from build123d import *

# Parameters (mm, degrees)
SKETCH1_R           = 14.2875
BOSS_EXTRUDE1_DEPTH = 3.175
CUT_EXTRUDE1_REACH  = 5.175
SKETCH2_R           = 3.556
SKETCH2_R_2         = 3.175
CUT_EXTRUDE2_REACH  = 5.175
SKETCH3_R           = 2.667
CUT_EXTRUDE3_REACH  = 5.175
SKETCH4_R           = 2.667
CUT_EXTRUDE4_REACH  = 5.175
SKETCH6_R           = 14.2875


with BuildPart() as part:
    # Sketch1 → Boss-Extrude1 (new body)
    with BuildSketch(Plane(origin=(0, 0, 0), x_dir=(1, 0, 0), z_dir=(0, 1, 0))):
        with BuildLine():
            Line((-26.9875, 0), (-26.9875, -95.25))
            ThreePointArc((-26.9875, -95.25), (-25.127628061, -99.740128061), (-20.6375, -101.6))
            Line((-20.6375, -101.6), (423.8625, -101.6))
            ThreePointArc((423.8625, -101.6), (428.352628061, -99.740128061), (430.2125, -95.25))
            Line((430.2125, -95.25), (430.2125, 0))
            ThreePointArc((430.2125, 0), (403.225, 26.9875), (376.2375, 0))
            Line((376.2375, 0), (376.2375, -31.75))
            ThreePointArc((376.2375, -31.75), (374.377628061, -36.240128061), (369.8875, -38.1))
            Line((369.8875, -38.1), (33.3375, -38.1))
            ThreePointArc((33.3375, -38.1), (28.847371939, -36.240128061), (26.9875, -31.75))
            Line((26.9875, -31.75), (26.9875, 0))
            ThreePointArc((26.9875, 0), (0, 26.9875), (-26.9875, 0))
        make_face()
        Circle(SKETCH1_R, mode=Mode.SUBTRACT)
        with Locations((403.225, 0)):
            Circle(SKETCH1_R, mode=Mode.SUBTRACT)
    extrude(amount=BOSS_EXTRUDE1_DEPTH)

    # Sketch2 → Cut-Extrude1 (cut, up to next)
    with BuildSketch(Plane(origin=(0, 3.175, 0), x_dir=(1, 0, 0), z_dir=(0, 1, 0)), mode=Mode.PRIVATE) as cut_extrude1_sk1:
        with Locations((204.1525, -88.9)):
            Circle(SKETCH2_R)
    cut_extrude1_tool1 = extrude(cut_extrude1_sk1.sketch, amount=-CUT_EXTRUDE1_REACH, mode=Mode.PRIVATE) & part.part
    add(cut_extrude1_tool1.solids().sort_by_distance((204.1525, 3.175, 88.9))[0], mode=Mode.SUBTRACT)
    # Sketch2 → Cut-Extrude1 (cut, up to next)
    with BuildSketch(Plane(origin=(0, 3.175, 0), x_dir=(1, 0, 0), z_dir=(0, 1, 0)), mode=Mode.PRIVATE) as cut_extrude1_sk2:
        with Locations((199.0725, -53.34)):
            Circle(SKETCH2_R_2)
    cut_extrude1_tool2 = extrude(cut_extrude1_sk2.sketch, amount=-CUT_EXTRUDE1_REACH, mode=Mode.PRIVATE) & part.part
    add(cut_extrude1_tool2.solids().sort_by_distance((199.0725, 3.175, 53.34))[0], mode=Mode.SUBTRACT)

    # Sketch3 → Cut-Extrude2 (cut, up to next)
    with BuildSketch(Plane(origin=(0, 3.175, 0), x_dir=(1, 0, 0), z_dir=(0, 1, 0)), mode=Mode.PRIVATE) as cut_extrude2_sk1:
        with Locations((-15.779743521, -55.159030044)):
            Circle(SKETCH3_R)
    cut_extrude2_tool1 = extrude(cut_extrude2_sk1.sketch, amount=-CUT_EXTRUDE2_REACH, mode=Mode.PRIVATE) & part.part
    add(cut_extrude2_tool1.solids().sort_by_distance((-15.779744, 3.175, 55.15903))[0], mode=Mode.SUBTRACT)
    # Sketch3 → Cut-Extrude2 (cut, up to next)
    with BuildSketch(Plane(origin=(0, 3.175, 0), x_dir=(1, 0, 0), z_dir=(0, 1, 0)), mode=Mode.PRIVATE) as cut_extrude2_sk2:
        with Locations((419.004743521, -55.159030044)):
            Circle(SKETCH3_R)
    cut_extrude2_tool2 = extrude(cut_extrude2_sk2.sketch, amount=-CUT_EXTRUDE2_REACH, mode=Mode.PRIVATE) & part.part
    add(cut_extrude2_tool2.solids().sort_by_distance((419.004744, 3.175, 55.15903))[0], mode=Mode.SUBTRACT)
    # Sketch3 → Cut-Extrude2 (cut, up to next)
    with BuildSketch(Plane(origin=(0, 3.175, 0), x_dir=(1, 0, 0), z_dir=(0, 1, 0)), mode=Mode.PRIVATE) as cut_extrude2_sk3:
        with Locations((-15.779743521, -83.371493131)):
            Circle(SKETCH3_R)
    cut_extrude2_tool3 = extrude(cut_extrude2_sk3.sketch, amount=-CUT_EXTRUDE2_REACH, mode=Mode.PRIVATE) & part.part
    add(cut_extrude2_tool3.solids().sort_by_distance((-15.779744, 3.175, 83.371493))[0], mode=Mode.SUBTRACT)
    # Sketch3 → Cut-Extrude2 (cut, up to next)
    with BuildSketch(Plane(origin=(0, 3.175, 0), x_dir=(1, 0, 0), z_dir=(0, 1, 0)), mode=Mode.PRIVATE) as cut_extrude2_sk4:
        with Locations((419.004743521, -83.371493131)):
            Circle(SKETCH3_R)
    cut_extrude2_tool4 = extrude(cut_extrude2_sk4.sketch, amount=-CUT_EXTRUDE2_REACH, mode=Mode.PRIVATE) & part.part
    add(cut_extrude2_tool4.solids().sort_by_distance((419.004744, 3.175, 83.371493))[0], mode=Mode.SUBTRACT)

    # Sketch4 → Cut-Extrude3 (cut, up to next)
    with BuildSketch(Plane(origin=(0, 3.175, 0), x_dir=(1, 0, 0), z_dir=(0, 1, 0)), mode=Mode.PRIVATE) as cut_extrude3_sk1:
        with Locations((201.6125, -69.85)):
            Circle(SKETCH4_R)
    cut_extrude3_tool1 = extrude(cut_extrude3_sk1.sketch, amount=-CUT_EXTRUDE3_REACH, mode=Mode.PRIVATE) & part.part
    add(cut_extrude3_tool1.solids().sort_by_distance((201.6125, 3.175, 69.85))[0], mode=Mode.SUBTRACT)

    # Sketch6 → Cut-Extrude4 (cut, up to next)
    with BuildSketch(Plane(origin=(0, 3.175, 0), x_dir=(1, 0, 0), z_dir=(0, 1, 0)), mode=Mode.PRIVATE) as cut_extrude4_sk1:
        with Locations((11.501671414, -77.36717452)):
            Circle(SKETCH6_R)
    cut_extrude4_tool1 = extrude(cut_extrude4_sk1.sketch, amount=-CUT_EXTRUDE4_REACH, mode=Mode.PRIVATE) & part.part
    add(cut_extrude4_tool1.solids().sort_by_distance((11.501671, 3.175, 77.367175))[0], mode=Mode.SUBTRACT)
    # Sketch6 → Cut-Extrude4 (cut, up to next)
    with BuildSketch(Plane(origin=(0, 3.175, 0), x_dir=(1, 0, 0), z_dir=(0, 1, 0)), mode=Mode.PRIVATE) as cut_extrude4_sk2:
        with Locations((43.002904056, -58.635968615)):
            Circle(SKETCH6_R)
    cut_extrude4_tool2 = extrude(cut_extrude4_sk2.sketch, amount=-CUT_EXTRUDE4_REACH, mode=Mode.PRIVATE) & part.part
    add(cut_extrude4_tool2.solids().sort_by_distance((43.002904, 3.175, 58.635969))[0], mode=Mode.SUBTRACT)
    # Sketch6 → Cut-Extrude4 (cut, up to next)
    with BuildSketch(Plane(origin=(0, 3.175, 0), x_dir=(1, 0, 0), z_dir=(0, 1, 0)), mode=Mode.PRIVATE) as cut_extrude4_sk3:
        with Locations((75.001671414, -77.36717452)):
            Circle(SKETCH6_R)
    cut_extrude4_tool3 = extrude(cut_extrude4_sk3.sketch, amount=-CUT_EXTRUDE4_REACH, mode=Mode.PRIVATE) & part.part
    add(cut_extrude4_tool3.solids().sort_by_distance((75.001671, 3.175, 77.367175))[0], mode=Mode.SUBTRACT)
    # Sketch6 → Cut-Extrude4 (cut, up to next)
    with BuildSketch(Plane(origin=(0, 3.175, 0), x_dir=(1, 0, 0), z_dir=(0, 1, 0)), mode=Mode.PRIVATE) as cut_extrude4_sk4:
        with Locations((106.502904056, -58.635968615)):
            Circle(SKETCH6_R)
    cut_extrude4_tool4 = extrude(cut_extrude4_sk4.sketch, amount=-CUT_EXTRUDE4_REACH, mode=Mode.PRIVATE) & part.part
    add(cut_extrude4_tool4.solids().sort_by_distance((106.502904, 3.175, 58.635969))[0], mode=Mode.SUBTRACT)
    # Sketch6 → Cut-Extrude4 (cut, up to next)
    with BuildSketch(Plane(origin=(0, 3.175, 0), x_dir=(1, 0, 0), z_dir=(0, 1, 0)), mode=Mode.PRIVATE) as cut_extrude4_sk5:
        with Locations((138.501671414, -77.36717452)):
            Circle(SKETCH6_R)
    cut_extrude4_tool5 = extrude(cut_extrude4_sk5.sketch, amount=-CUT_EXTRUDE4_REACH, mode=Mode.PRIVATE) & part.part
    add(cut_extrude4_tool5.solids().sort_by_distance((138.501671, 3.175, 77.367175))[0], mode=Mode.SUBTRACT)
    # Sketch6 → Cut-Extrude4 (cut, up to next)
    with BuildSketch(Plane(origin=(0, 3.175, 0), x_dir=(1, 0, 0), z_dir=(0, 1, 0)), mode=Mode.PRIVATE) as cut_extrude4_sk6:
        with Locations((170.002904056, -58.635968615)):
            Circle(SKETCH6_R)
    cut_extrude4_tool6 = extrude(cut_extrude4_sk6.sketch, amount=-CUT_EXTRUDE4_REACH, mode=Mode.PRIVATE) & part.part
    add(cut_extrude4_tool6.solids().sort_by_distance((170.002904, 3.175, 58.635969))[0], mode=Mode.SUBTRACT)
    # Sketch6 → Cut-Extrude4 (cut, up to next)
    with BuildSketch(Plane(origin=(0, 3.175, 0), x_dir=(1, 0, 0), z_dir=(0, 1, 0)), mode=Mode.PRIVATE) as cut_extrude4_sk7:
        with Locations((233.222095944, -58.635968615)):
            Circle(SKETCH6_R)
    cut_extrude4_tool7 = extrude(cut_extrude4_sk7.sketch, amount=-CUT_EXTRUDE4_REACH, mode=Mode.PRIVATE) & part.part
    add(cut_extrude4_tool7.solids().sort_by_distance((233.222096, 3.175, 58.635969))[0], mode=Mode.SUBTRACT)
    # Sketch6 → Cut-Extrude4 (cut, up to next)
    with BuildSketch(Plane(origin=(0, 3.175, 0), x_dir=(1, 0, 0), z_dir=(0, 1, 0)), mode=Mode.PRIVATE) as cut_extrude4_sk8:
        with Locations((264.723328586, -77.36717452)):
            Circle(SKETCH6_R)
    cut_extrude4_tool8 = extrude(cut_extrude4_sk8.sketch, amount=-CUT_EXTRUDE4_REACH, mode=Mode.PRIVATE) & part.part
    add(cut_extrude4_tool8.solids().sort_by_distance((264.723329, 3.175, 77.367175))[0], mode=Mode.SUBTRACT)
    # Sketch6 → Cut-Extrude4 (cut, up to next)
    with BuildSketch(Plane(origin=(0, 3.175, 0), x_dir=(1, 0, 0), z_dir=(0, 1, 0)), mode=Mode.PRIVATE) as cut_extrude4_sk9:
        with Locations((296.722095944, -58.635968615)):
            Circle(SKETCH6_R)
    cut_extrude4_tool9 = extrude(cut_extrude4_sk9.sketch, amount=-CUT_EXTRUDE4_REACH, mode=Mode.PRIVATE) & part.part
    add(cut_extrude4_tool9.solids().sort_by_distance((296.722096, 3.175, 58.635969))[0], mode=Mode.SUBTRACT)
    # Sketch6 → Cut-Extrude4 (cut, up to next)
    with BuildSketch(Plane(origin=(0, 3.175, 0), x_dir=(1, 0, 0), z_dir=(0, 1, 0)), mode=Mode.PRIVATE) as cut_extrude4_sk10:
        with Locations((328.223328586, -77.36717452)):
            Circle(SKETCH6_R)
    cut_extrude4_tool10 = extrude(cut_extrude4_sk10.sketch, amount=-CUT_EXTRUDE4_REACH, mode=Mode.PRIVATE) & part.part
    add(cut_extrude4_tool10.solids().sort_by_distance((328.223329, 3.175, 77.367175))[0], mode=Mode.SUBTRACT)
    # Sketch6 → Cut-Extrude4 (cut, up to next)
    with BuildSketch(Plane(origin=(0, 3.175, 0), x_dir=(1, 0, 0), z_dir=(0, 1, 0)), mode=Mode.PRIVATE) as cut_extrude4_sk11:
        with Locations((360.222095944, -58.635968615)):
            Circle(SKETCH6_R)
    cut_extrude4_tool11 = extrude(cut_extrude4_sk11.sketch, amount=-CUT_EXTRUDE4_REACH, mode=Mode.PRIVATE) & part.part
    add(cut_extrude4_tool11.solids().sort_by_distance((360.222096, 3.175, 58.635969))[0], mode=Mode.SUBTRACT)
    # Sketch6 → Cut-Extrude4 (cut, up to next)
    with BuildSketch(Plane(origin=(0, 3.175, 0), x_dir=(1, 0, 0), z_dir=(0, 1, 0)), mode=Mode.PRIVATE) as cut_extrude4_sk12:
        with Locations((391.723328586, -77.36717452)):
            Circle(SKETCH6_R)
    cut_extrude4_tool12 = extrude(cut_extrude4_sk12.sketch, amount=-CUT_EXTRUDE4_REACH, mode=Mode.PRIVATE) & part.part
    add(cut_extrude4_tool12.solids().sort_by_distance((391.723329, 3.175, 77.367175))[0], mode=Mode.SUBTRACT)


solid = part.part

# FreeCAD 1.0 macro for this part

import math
import FreeCAD as App
import Part
import Sketcher

V = App.Vector
Q = App.Units.Quantity

doc = App.newDocument("Part")
body = doc.addObject("PartDesign::Body", "Body")

sketch1 = body.newObject("Sketcher::SketchObject", "Sketch")
sketch1.AttachmentSupport = (doc.getObject("XZ_Plane"), [""])
sketch1.MapMode = "FlatFace"
sketch1.addGeometry([
    Part.LineSegment(V(-27, 0, 0), V(-27, 95, 0)),
    Part.ArcOfCircle(Part.Circle(V(-21, 95, 0), V(0, 0, 1), 6), math.radians(90), math.radians(180)),
    Part.LineSegment(V(-21, 102, 0), V(424, 102, 0)),
    Part.ArcOfCircle(Part.Circle(V(424, 95, 0), V(0, 0, 1), 6), math.radians(0), math.radians(90)),
    Part.LineSegment(V(430, 95, 0), V(430, 0, 0)),
    Part.ArcOfCircle(Part.Circle(V(403, 0, 0), V(0, 0, 1), 27), math.radians(180), math.radians(360)),
    Part.LineSegment(V(376, 0, 0), V(376, 32, 0)),
    Part.ArcOfCircle(Part.Circle(V(370, 32, 0), V(0, 0, 1), 6), math.radians(0), math.radians(90)),
    Part.LineSegment(V(370, 38, 0), V(33, 38, 0)),
    Part.ArcOfCircle(Part.Circle(V(33, 32, 0), V(0, 0, 1), 6), math.radians(90), math.radians(180)),
    Part.LineSegment(V(27, 32, 0), V(27, 0, 0)),
    Part.ArcOfCircle(Part.Circle(V(0, 0, 0), V(0, 0, 1), 27), math.radians(180), math.radians(360)),
    Part.Circle(V(0, 0, 0), V(0, 0, 1), 14),
    Part.Circle(V(403, 0, 0), V(0, 0, 1), 14),
], False)
sketch1.addConstraint([
    Sketcher.Constraint("Tangent", 0, 2, 1, 2),
    Sketcher.Constraint("Tangent", 1, 1, 2, 1),
    Sketcher.Constraint("Tangent", 2, 2, 3, 2),
    Sketcher.Constraint("Tangent", 3, 1, 4, 1),
    Sketcher.Constraint("Tangent", 4, 2, 5, 2),
    Sketcher.Constraint("Tangent", 5, 1, 6, 1),
    Sketcher.Constraint("Tangent", 6, 2, 7, 1),
    Sketcher.Constraint("Tangent", 7, 2, 8, 1),
    Sketcher.Constraint("Tangent", 8, 2, 9, 1),
    Sketcher.Constraint("Tangent", 9, 2, 10, 1),
    Sketcher.Constraint("Tangent", 10, 2, 11, 2),
    Sketcher.Constraint("Tangent", 11, 1, 0, 1),
    Sketcher.Constraint("Vertical", 0),
    Sketcher.Constraint("Horizontal", 2),
    Sketcher.Constraint("Vertical", 4),
    Sketcher.Constraint("Vertical", 6),
    Sketcher.Constraint("Horizontal", 8),
    Sketcher.Constraint("Vertical", 10),
    Sketcher.Constraint("Coincident", 11, 3, -1, 1),
    Sketcher.Constraint("Coincident", 12, 3, -1, 1),
    Sketcher.Constraint("Coincident", 13, 3, 5, 3),
    Sketcher.Constraint("Equal", 1, 3),
    Sketcher.Constraint("Equal", 3, 7),
    Sketcher.Constraint("Equal", 7, 9),
    Sketcher.Constraint("Equal", 5, 11),
    Sketcher.Constraint("Equal", 12, 13),
    Sketcher.Constraint("PointOnObject", 5, 3, -1),
    Sketcher.Constraint("Radius", 1, Q("0.25 in")),
    Sketcher.Constraint("Diameter", 12, Q("1.125 in")),
    Sketcher.Constraint("DistanceX", 2, 1, 2, 2, Q("17.5 in")),
    Sketcher.Constraint("DistanceY", -1, 1, 1, 1, Q("4 in")),
    Sketcher.Constraint("Radius", 5, Q("1.0625 in")),
    Sketcher.Constraint("DistanceY", 6, 1, 6, 2, Q("1.25 in")),
])
pad1 = body.newObject("PartDesign::Pad", "Pad")
pad1.Profile = sketch1
pad1.Length = Q("0.125 in")
pad1.Reversed = True

sketch2 = body.newObject("Sketcher::SketchObject", "Sketch001")
sketch2.AttachmentSupport = (doc.getObject("XZ_Plane"), [""])
sketch2.MapMode = "FlatFace"
sketch2.AttachmentOffset = App.Placement(V(0, 0, -0.125 * 25.4), App.Rotation())
sketch2.addGeometry(Part.Circle(V(204.2, 88.9, 0), V(0, 0, 1), 3.6), False)
sketch2.addConstraint([
    Sketcher.Constraint("Diameter", 0, Q("0.28 in")),
    Sketcher.Constraint("DistanceY", -1, 1, 0, 3, Q("3.5 in")),
    Sketcher.Constraint("DistanceX", -1, 1, 0, 3, Q("8.0375 in")),
])
pocket1 = body.newObject("PartDesign::Pocket", "Pocket")
pocket1.Profile = sketch2
pocket1.Type = "UpToFirst"
pocket1.Reversed = True

sketch3 = body.newObject("Sketcher::SketchObject", "Sketch002")
sketch3.AttachmentSupport = (doc.getObject("XZ_Plane"), [""])
sketch3.MapMode = "FlatFace"
sketch3.AttachmentOffset = App.Placement(V(0, 0, -0.125 * 25.4), App.Rotation())
sketch3.addGeometry(Part.Circle(V(199.1, 53.3, 0), V(0, 0, 1), 3.2), False)
sketch3.addConstraint([
    Sketcher.Constraint("Diameter", 0, Q("0.25 in")),
    Sketcher.Constraint("DistanceY", -1, 1, 0, 3, Q("2.1 in")),
    Sketcher.Constraint("DistanceX", -1, 1, 0, 3, Q("7.8375 in")),
])
pocket2 = body.newObject("PartDesign::Pocket", "Pocket001")
pocket2.Profile = sketch3
pocket2.Type = "UpToFirst"
pocket2.Reversed = True

sketch4 = body.newObject("Sketcher::SketchObject", "Sketch003")
sketch4.AttachmentSupport = (doc.getObject("XZ_Plane"), [""])
sketch4.MapMode = "FlatFace"
sketch4.AttachmentOffset = App.Placement(V(0, 0, -0.125 * 25.4), App.Rotation())
sketch4.addGeometry(Part.Circle(V(-15.8, 55.2, 0), V(0, 0, 1), 2.7), False)
sketch4.addConstraint([
    Sketcher.Constraint("Diameter", 0, Q("0.21 in")),
    Sketcher.Constraint("DistanceY", -1, 1, 0, 3, 55.15903),
    Sketcher.Constraint("DistanceX", 0, 3, -1, 1, 15.779744),
])
pocket3 = body.newObject("PartDesign::Pocket", "Pocket002")
pocket3.Profile = sketch4
pocket3.Type = "UpToFirst"
pocket3.Reversed = True

sketch5 = body.newObject("Sketcher::SketchObject", "Sketch004")
sketch5.AttachmentSupport = (doc.getObject("XZ_Plane"), [""])
sketch5.MapMode = "FlatFace"
sketch5.AttachmentOffset = App.Placement(V(0, 0, -0.125 * 25.4), App.Rotation())
sketch5.addGeometry(Part.Circle(V(419, 55.2, 0), V(0, 0, 1), 2.7), False)
sketch5.addConstraint([
    Sketcher.Constraint("Diameter", 0, Q("0.21 in")),
    Sketcher.Constraint("DistanceY", -1, 1, 0, 3, 55.15903),
    Sketcher.Constraint("DistanceX", -1, 1, 0, 3, 419.004744),
])
pocket4 = body.newObject("PartDesign::Pocket", "Pocket003")
pocket4.Profile = sketch5
pocket4.Type = "UpToFirst"
pocket4.Reversed = True

sketch6 = body.newObject("Sketcher::SketchObject", "Sketch005")
sketch6.AttachmentSupport = (doc.getObject("XZ_Plane"), [""])
sketch6.MapMode = "FlatFace"
sketch6.AttachmentOffset = App.Placement(V(0, 0, -0.125 * 25.4), App.Rotation())
sketch6.addGeometry(Part.Circle(V(-15.8, 83.4, 0), V(0, 0, 1), 2.7), False)
sketch6.addConstraint([
    Sketcher.Constraint("Diameter", 0, Q("0.21 in")),
    Sketcher.Constraint("DistanceX", 0, 3, -1, 1, 15.779744),
    Sketcher.Constraint("DistanceY", -1, 1, 0, 3, 83.371493),
])
pocket5 = body.newObject("PartDesign::Pocket", "Pocket004")
pocket5.Profile = sketch6
pocket5.Type = "UpToFirst"
pocket5.Reversed = True

sketch7 = body.newObject("Sketcher::SketchObject", "Sketch006")
sketch7.AttachmentSupport = (doc.getObject("XZ_Plane"), [""])
sketch7.MapMode = "FlatFace"
sketch7.AttachmentOffset = App.Placement(V(0, 0, -0.125 * 25.4), App.Rotation())
sketch7.addGeometry(Part.Circle(V(419, 83.4, 0), V(0, 0, 1), 2.7), False)
sketch7.addConstraint([
    Sketcher.Constraint("Diameter", 0, Q("0.21 in")),
    Sketcher.Constraint("DistanceX", -1, 1, 0, 3, 419.004744),
    Sketcher.Constraint("DistanceY", -1, 1, 0, 3, 83.371493),
])
pocket6 = body.newObject("PartDesign::Pocket", "Pocket005")
pocket6.Profile = sketch7
pocket6.Type = "UpToFirst"
pocket6.Reversed = True

sketch8 = body.newObject("Sketcher::SketchObject", "Sketch007")
sketch8.AttachmentSupport = (doc.getObject("XZ_Plane"), [""])
sketch8.MapMode = "FlatFace"
sketch8.AttachmentOffset = App.Placement(V(0, 0, -0.125 * 25.4), App.Rotation())
sketch8.addGeometry(Part.Circle(V(201.6, 69.8, 0), V(0, 0, 1), 2.7), False)
sketch8.addConstraint([
    Sketcher.Constraint("Diameter", 0, Q("0.21 in")),
    Sketcher.Constraint("DistanceY", -1, 1, 0, 3, Q("2.75 in")),
    Sketcher.Constraint("DistanceX", -1, 1, 0, 3, Q("7.9375 in")),
])
pocket7 = body.newObject("PartDesign::Pocket", "Pocket006")
pocket7.Profile = sketch8
pocket7.Type = "UpToFirst"
pocket7.Reversed = True

sketch9 = body.newObject("Sketcher::SketchObject", "Sketch008")
sketch9.AttachmentSupport = (doc.getObject("XZ_Plane"), [""])
sketch9.MapMode = "FlatFace"
sketch9.AttachmentOffset = App.Placement(V(0, 0, -0.125 * 25.4), App.Rotation())
sketch9.addGeometry(Part.Circle(V(12, 77, 0), V(0, 0, 1), 14), False)
sketch9.addConstraint([
    Sketcher.Constraint("Diameter", 0, Q("1.125 in")),
    Sketcher.Constraint("DistanceX", -1, 1, 0, 3, 11.501671),
    Sketcher.Constraint("DistanceY", -1, 1, 0, 3, 77.367175),
])
pocket8 = body.newObject("PartDesign::Pocket", "Pocket007")
pocket8.Profile = sketch9
pocket8.Type = "UpToFirst"
pocket8.Reversed = True

sketch10 = body.newObject("Sketcher::SketchObject", "Sketch009")
sketch10.AttachmentSupport = (doc.getObject("XZ_Plane"), [""])
sketch10.MapMode = "FlatFace"
sketch10.AttachmentOffset = App.Placement(V(0, 0, -0.125 * 25.4), App.Rotation())
sketch10.addGeometry(Part.Circle(V(43, 59, 0), V(0, 0, 1), 14), False)
sketch10.addConstraint([
    Sketcher.Constraint("Diameter", 0, Q("1.125 in")),
    Sketcher.Constraint("DistanceY", -1, 1, 0, 3, 58.635969),
    Sketcher.Constraint("DistanceX", -1, 1, 0, 3, 43.002904),
])
pocket9 = body.newObject("PartDesign::Pocket", "Pocket008")
pocket9.Profile = sketch10
pocket9.Type = "UpToFirst"
pocket9.Reversed = True

sketch11 = body.newObject("Sketcher::SketchObject", "Sketch010")
sketch11.AttachmentSupport = (doc.getObject("XZ_Plane"), [""])
sketch11.MapMode = "FlatFace"
sketch11.AttachmentOffset = App.Placement(V(0, 0, -0.125 * 25.4), App.Rotation())
sketch11.addGeometry(Part.Circle(V(75, 77, 0), V(0, 0, 1), 14), False)
sketch11.addConstraint([
    Sketcher.Constraint("Diameter", 0, Q("1.125 in")),
    Sketcher.Constraint("DistanceX", -1, 1, 0, 3, 75.001671),
    Sketcher.Constraint("DistanceY", -1, 1, 0, 3, 77.367175),
])
pocket10 = body.newObject("PartDesign::Pocket", "Pocket009")
pocket10.Profile = sketch11
pocket10.Type = "UpToFirst"
pocket10.Reversed = True

sketch12 = body.newObject("Sketcher::SketchObject", "Sketch011")
sketch12.AttachmentSupport = (doc.getObject("XZ_Plane"), [""])
sketch12.MapMode = "FlatFace"
sketch12.AttachmentOffset = App.Placement(V(0, 0, -0.125 * 25.4), App.Rotation())
sketch12.addGeometry(Part.Circle(V(107, 59, 0), V(0, 0, 1), 14), False)
sketch12.addConstraint([
    Sketcher.Constraint("Diameter", 0, Q("1.125 in")),
    Sketcher.Constraint("DistanceY", -1, 1, 0, 3, 58.635969),
    Sketcher.Constraint("DistanceX", -1, 1, 0, 3, 106.502904),
])
pocket11 = body.newObject("PartDesign::Pocket", "Pocket010")
pocket11.Profile = sketch12
pocket11.Type = "UpToFirst"
pocket11.Reversed = True

sketch13 = body.newObject("Sketcher::SketchObject", "Sketch012")
sketch13.AttachmentSupport = (doc.getObject("XZ_Plane"), [""])
sketch13.MapMode = "FlatFace"
sketch13.AttachmentOffset = App.Placement(V(0, 0, -0.125 * 25.4), App.Rotation())
sketch13.addGeometry(Part.Circle(V(139, 77, 0), V(0, 0, 1), 14), False)
sketch13.addConstraint([
    Sketcher.Constraint("Diameter", 0, Q("1.125 in")),
    Sketcher.Constraint("DistanceX", -1, 1, 0, 3, 138.501671),
    Sketcher.Constraint("DistanceY", -1, 1, 0, 3, 77.367175),
])
pocket12 = body.newObject("PartDesign::Pocket", "Pocket011")
pocket12.Profile = sketch13
pocket12.Type = "UpToFirst"
pocket12.Reversed = True

sketch14 = body.newObject("Sketcher::SketchObject", "Sketch013")
sketch14.AttachmentSupport = (doc.getObject("XZ_Plane"), [""])
sketch14.MapMode = "FlatFace"
sketch14.AttachmentOffset = App.Placement(V(0, 0, -0.125 * 25.4), App.Rotation())
sketch14.addGeometry(Part.Circle(V(170, 59, 0), V(0, 0, 1), 14), False)
sketch14.addConstraint([
    Sketcher.Constraint("Diameter", 0, Q("1.125 in")),
    Sketcher.Constraint("DistanceY", -1, 1, 0, 3, 58.635969),
    Sketcher.Constraint("DistanceX", -1, 1, 0, 3, 170.002904),
])
pocket13 = body.newObject("PartDesign::Pocket", "Pocket012")
pocket13.Profile = sketch14
pocket13.Type = "UpToFirst"
pocket13.Reversed = True

sketch15 = body.newObject("Sketcher::SketchObject", "Sketch014")
sketch15.AttachmentSupport = (doc.getObject("XZ_Plane"), [""])
sketch15.MapMode = "FlatFace"
sketch15.AttachmentOffset = App.Placement(V(0, 0, -0.125 * 25.4), App.Rotation())
sketch15.addGeometry(Part.Circle(V(233, 59, 0), V(0, 0, 1), 14), False)
sketch15.addConstraint([
    Sketcher.Constraint("Diameter", 0, Q("1.125 in")),
    Sketcher.Constraint("DistanceY", -1, 1, 0, 3, 58.635969),
    Sketcher.Constraint("DistanceX", -1, 1, 0, 3, 233.222096),
])
pocket14 = body.newObject("PartDesign::Pocket", "Pocket013")
pocket14.Profile = sketch15
pocket14.Type = "UpToFirst"
pocket14.Reversed = True

sketch16 = body.newObject("Sketcher::SketchObject", "Sketch015")
sketch16.AttachmentSupport = (doc.getObject("XZ_Plane"), [""])
sketch16.MapMode = "FlatFace"
sketch16.AttachmentOffset = App.Placement(V(0, 0, -0.125 * 25.4), App.Rotation())
sketch16.addGeometry(Part.Circle(V(265, 77, 0), V(0, 0, 1), 14), False)
sketch16.addConstraint([
    Sketcher.Constraint("Diameter", 0, Q("1.125 in")),
    Sketcher.Constraint("DistanceX", -1, 1, 0, 3, 264.723329),
    Sketcher.Constraint("DistanceY", -1, 1, 0, 3, 77.367175),
])
pocket15 = body.newObject("PartDesign::Pocket", "Pocket014")
pocket15.Profile = sketch16
pocket15.Type = "UpToFirst"
pocket15.Reversed = True

sketch17 = body.newObject("Sketcher::SketchObject", "Sketch016")
sketch17.AttachmentSupport = (doc.getObject("XZ_Plane"), [""])
sketch17.MapMode = "FlatFace"
sketch17.AttachmentOffset = App.Placement(V(0, 0, -0.125 * 25.4), App.Rotation())
sketch17.addGeometry(Part.Circle(V(297, 59, 0), V(0, 0, 1), 14), False)
sketch17.addConstraint([
    Sketcher.Constraint("Diameter", 0, Q("1.125 in")),
    Sketcher.Constraint("DistanceY", -1, 1, 0, 3, 58.635969),
    Sketcher.Constraint("DistanceX", -1, 1, 0, 3, 296.722096),
])
pocket16 = body.newObject("PartDesign::Pocket", "Pocket015")
pocket16.Profile = sketch17
pocket16.Type = "UpToFirst"
pocket16.Reversed = True

sketch18 = body.newObject("Sketcher::SketchObject", "Sketch017")
sketch18.AttachmentSupport = (doc.getObject("XZ_Plane"), [""])
sketch18.MapMode = "FlatFace"
sketch18.AttachmentOffset = App.Placement(V(0, 0, -0.125 * 25.4), App.Rotation())
sketch18.addGeometry(Part.Circle(V(328, 77, 0), V(0, 0, 1), 14), False)
sketch18.addConstraint([
    Sketcher.Constraint("Diameter", 0, Q("1.125 in")),
    Sketcher.Constraint("DistanceX", -1, 1, 0, 3, 328.223329),
    Sketcher.Constraint("DistanceY", -1, 1, 0, 3, 77.367175),
])
pocket17 = body.newObject("PartDesign::Pocket", "Pocket016")
pocket17.Profile = sketch18
pocket17.Type = "UpToFirst"
pocket17.Reversed = True

sketch19 = body.newObject("Sketcher::SketchObject", "Sketch018")
sketch19.AttachmentSupport = (doc.getObject("XZ_Plane"), [""])
sketch19.MapMode = "FlatFace"
sketch19.AttachmentOffset = App.Placement(V(0, 0, -0.125 * 25.4), App.Rotation())
sketch19.addGeometry(Part.Circle(V(360, 59, 0), V(0, 0, 1), 14), False)
sketch19.addConstraint([
    Sketcher.Constraint("Diameter", 0, Q("1.125 in")),
    Sketcher.Constraint("DistanceY", -1, 1, 0, 3, 58.635969),
    Sketcher.Constraint("DistanceX", -1, 1, 0, 3, 360.222096),
])
pocket18 = body.newObject("PartDesign::Pocket", "Pocket017")
pocket18.Profile = sketch19
pocket18.Type = "UpToFirst"
pocket18.Reversed = True

sketch20 = body.newObject("Sketcher::SketchObject", "Sketch019")
sketch20.AttachmentSupport = (doc.getObject("XZ_Plane"), [""])
sketch20.MapMode = "FlatFace"
sketch20.AttachmentOffset = App.Placement(V(0, 0, -0.125 * 25.4), App.Rotation())
sketch20.addGeometry(Part.Circle(V(392, 77, 0), V(0, 0, 1), 14), False)
sketch20.addConstraint([
    Sketcher.Constraint("Diameter", 0, Q("1.125 in")),
    Sketcher.Constraint("DistanceX", -1, 1, 0, 3, 391.723329),
    Sketcher.Constraint("DistanceY", -1, 1, 0, 3, 77.367175),
])
pocket19 = body.newObject("PartDesign::Pocket", "Pocket018")
pocket19.Profile = sketch20
pocket19.Type = "UpToFirst"
pocket19.Reversed = True

doc.recompute()
